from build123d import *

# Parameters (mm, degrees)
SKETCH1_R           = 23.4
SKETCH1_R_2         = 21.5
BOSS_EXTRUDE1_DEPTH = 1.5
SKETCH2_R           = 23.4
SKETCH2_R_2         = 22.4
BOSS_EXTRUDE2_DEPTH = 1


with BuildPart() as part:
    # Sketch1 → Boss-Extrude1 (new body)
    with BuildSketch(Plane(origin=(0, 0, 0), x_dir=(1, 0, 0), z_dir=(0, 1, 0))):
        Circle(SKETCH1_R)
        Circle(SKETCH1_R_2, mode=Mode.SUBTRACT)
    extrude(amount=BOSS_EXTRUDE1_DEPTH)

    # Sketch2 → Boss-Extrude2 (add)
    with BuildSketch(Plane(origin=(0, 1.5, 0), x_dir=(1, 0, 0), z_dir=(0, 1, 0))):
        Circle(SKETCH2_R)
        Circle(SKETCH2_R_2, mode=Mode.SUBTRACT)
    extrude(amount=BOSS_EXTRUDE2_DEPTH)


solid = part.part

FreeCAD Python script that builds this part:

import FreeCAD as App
import Part
import Sketcher

doc = App.newDocument("Part")
body = doc.addObject("PartDesign::Body", "Body")

sketch1 = body.newObject("Sketcher::SketchObject", "Sketch")
sketch1.AttachmentSupport = (doc.getObject("XZ_Plane"), [""])
sketch1.MapMode = "FlatFace"
sketch1.addGeometry([
    Part.Circle(App.Vector(0, 0, 0), App.Vector(0, 0, 1), 23),
    Part.Circle(App.Vector(0, 0, 0), App.Vector(0, 0, 1), 22),
], False)
sketch1.addConstraint([
    Sketcher.Constraint("Coincident", 0, 3, -1, 1),
    Sketcher.Constraint("Coincident", 1, 3, -1, 1),
    Sketcher.Constraint("Diameter", 1, 43.0),
    Sketcher.Constraint("Diameter", 0, 46.8),
])
pad1 = body.newObject("PartDesign::Pad", "Pad")
pad1.Profile = sketch1
pad1.Length = 1.5
pad1.Reversed = True

sketch2 = body.newObject("Sketcher::SketchObject", "Sketch001")
sketch2.AttachmentSupport = (doc.getObject("XZ_Plane"), [""])
sketch2.MapMode = "FlatFace"
sketch2.AttachmentOffset = App.Placement(App.Vector(0, 0, -1.5), App.Rotation())
sketch2.addGeometry([
    Part.Circle(App.Vector(0, 0, 0), App.Vector(0, 0, 1), 23),
    Part.Circle(App.Vector(0, 0, 0), App.Vector(0, 0, 1), 22),
], False)
sketch2.addConstraint([
    Sketcher.Constraint("Coincident", 0, 3, -1, 1),
    Sketcher.Constraint("Coincident", 1, 3, -1, 1),
    Sketcher.Constraint("Diameter", 0, 46.8),
    Sketcher.Constraint("Diameter", 1, 44.8),
])
pad2 = body.newObject("PartDesign::Pad", "Pad001")
pad2.Profile = sketch2
pad2.Length = 1
pad2.Reversed = True

doc.recompute()
